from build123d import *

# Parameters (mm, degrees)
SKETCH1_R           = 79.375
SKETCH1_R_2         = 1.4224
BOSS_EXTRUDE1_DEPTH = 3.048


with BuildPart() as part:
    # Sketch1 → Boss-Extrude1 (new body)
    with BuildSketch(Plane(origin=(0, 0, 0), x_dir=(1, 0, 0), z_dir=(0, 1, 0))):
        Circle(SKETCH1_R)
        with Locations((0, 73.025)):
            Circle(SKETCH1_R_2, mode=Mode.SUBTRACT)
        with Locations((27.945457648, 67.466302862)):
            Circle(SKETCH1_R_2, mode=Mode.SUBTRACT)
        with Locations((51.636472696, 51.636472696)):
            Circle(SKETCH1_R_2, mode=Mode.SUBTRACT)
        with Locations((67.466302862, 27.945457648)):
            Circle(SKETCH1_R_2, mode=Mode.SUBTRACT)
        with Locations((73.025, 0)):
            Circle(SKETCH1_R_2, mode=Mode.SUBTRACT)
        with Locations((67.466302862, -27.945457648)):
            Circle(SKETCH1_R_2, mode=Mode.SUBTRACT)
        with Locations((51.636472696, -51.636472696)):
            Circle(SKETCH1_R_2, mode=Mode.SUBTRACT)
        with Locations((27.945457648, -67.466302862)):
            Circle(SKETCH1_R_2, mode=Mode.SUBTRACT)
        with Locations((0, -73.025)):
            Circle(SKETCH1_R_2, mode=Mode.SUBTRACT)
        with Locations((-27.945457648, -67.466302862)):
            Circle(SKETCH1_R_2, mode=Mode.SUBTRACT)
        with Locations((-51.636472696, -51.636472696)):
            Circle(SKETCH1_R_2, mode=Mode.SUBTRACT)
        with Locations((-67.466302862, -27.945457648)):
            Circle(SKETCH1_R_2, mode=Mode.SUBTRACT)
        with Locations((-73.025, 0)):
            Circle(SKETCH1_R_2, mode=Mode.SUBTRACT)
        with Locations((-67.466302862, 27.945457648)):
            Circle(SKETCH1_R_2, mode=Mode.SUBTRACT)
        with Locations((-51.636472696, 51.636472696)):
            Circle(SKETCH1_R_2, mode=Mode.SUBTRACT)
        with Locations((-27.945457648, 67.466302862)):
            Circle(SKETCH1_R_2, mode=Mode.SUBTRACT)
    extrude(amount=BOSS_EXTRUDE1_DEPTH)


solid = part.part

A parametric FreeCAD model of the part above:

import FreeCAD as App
import Part
import Sketcher
Q = App.Units.Quantity

doc = App.newDocument("Part")
body = doc.addObject("PartDesign::Body", "Body")

# Sketch on XZ plane
sketch1 = body.newObject("Sketcher::SketchObject", "Sketch")
sketch1.AttachmentSupport = (doc.getObject("XZ_Plane"), [""])
sketch1.MapMode = "FlatFace"
sketch1.addGeometry([
    Part.Circle(App.Vector(0, 0, 0), App.Vector(0, 0, 1), 79.4),  # 0
    Part.Circle(App.Vector(-51.6, 51.6, 0), App.Vector(0, 0, 1), 1.4),  # 1
    Part.Circle(App.Vector(-27.9, 67.5, 0), App.Vector(0, 0, 1), 1.4),  # 2
    Part.Circle(App.Vector(-67.5, 27.9, 0), App.Vector(0, 0, 1), 1.4),  # 3
    Part.Circle(App.Vector(0, 73, 0), App.Vector(0, 0, 1), 1.4),  # 4
    Part.Circle(App.Vector(27.9, 67.5, 0), App.Vector(0, 0, 1), 1.4),  # 5
    Part.Circle(App.Vector(51.6, 51.6, 0), App.Vector(0, 0, 1), 1.4),  # 6
    Part.Circle(App.Vector(67.5, 27.9, 0), App.Vector(0, 0, 1), 1.4),  # 7
    Part.Circle(App.Vector(-73, 0, 0), App.Vector(0, 0, 1), 1.4),  # 8
    Part.Circle(App.Vector(-67.5, -27.9, 0), App.Vector(0, 0, 1), 1.4),  # 9
    Part.Circle(App.Vector(-51.6, -51.6, 0), App.Vector(0, 0, 1), 1.4),  # 10
    Part.Circle(App.Vector(-27.9, -67.5, 0), App.Vector(0, 0, 1), 1.4),  # 11
    Part.Circle(App.Vector(73, 0, 0), App.Vector(0, 0, 1), 1.4),  # 12
    Part.Circle(App.Vector(67.5, -27.9, 0), App.Vector(0, 0, 1), 1.4),  # 13
    Part.Circle(App.Vector(0, -73, 0), App.Vector(0, 0, 1), 1.4),  # 14
    Part.Circle(App.Vector(27.9, -67.5, 0), App.Vector(0, 0, 1), 1.4),  # 15
    Part.Circle(App.Vector(51.6, -51.6, 0), App.Vector(0, 0, 1), 1.4),  # 16
], False)
sketch1.addConstraint([
    Sketcher.Constraint("Coincident", 0, 3, -1, 1),
    Sketcher.Constraint("Equal", 1, 2),
    Sketcher.Constraint("Equal", 2, 3),
    Sketcher.Constraint("Equal", 3, 4),
    Sketcher.Constraint("Equal", 4, 5),
    Sketcher.Constraint("Equal", 5, 6),
    Sketcher.Constraint("Equal", 6, 7),
    Sketcher.Constraint("Equal", 7, 8),
    Sketcher.Constraint("Equal", 8, 9),
    Sketcher.Constraint("Equal", 9, 10),
    Sketcher.Constraint("Equal", 10, 11),
    Sketcher.Constraint("Equal", 11, 12),
    Sketcher.Constraint("Equal", 12, 13),
    Sketcher.Constraint("Equal", 13, 14),
    Sketcher.Constraint("Equal", 14, 15),
    Sketcher.Constraint("Equal", 15, 16),
    Sketcher.Constraint("Symmetric", 7, 3, 9, 3, -1, 1),
    Sketcher.Constraint("Symmetric", 6, 3, 10, 3, -1, 1),
    Sketcher.Constraint("Symmetric", 5, 3, 11, 3, -1, 1),
    Sketcher.Constraint("Symmetric", 8, 3, 12, 3, -1, 1),
    Sketcher.Constraint("Symmetric", 3, 3, 13, 3, -1, 1),
    Sketcher.Constraint("Symmetric", 4, 3, 14, 3, -1, 1),
    Sketcher.Constraint("Symmetric", 2, 3, 15, 3, -1, 1),
    Sketcher.Constraint("Symmetric", 1, 3, 16, 3, -1, 1),
    Sketcher.Constraint("Symmetric", 2, 3, 5, 3, -2),
    Sketcher.Constraint("Symmetric", 1, 3, 6, 3, -2),
    Sketcher.Constraint("Symmetric", 3, 3, 7, 3, -2),
    Sketcher.Constraint("PointOnObject", 4, 3, -2),
    Sketcher.Constraint("PointOnObject", 8, 3, -1),
    Sketcher.Constraint("Diameter", 0, Q("6.25 in")),
    Sketcher.Constraint("Diameter", 1, Q("0.112 in")),
    Sketcher.Constraint("DistanceY", -1, 1, 4, 3, Q("2.875 in")),
    Sketcher.Constraint("DistanceX", 8, 3, -1, 1, Q("2.875 in")),
    Sketcher.Constraint("DistanceY", 1, 3, 2, 3, Q("15.82983 mm")),
    Sketcher.Constraint("DistanceX", 3, 3, 1, 3, Q("15.82983 mm")),
    Sketcher.Constraint("DistanceX", 1, 3, 5, 3, Q("79.58193 mm")),
    Sketcher.Constraint("DistanceY", 9, 3, 1, 3, Q("79.58193 mm")),
    Sketcher.Constraint("DistanceX", 1, 3, -1, 1, Q("51.636473 mm")),
    Sketcher.Constraint("DistanceY", -1, 1, 1, 3, Q("51.636473 mm")),
])
pad1 = body.newObject("PartDesign::Pad", "Pad")
pad1.Profile = sketch1
pad1.Length = Q("0.12 in")
pad1.Reversed = True

doc.recompute()
